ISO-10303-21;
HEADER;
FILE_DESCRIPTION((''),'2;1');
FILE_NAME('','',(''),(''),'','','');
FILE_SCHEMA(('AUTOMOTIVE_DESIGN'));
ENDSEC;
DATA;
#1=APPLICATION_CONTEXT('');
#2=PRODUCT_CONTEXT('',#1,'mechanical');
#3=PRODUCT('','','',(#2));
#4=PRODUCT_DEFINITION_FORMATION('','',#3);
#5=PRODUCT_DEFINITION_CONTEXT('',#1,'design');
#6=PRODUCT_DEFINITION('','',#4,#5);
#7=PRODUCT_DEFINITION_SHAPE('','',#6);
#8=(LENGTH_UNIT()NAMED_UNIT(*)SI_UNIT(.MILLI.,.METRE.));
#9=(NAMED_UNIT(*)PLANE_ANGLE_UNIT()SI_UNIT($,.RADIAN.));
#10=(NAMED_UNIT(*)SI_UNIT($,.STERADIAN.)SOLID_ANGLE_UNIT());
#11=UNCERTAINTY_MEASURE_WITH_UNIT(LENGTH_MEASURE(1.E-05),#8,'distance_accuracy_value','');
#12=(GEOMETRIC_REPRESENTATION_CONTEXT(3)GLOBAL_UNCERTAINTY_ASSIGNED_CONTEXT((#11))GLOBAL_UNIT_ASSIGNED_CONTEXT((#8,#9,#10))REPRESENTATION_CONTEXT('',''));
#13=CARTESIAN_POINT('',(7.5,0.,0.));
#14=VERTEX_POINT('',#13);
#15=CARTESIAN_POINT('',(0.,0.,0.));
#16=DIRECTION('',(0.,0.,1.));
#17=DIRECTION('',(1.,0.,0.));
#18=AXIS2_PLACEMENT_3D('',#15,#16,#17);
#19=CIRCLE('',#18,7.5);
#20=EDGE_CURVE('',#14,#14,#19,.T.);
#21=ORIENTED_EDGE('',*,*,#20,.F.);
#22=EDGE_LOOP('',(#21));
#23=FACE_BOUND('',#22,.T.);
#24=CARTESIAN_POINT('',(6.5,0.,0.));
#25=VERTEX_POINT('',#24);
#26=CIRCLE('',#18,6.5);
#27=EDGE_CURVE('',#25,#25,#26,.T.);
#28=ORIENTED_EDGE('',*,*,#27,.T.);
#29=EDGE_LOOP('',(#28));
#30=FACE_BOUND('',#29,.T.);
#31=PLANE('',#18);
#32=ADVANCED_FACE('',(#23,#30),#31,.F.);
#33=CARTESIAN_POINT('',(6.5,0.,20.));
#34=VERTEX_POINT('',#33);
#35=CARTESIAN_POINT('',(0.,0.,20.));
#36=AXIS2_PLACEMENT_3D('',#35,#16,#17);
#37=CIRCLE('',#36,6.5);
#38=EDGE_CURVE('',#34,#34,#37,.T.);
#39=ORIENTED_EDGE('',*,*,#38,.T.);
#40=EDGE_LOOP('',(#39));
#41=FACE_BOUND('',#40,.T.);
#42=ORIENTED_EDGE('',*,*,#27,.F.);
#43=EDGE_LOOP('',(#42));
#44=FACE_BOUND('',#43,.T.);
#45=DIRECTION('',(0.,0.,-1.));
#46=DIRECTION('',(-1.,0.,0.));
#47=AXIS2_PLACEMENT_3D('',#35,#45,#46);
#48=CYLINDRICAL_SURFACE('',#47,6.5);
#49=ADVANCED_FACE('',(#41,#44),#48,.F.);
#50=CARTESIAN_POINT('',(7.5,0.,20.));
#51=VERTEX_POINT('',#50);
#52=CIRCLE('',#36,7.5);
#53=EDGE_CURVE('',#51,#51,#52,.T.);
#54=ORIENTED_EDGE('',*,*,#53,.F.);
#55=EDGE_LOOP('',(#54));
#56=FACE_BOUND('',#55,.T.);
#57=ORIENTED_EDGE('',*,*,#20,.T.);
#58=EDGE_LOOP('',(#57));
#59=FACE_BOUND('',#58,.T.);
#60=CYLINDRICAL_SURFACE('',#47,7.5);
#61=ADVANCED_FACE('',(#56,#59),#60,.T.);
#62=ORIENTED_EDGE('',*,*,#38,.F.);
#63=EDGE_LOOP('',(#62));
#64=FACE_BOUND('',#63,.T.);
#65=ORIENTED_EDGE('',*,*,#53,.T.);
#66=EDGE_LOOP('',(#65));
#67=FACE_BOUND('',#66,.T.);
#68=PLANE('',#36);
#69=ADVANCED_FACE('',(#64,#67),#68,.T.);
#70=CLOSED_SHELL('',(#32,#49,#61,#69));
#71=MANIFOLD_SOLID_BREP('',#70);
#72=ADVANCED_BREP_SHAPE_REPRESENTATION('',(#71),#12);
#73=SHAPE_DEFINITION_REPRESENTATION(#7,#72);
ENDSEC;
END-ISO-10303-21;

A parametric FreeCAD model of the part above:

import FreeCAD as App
import Part
import Sketcher

doc = App.newDocument("Part")
body = doc.addObject("PartDesign::Body", "Body")

# Sketch on XY plane
sketch1 = body.newObject("Sketcher::SketchObject", "Sketch")
sketch1.AttachmentSupport = (doc.getObject("XY_Plane"), [""])
sketch1.MapMode = "FlatFace"
sketch1.addGeometry(Part.Circle(App.Vector(0, 0, 0), App.Vector(0, 0, 1), 8), False)
sketch1.addGeometry(Part.Circle(App.Vector(0, 0, 0), App.Vector(0, 0, 1), 6), False)
sketch1.addConstraint(Sketcher.Constraint("Coincident", 0, 3, -1, 1))
sketch1.addConstraint(Sketcher.Constraint("Coincident", 1, 3, -1, 1))
sketch1.addConstraint(Sketcher.Constraint("Diameter", 0, 15.0))
sketch1.addConstraint(Sketcher.Constraint("Diameter", 1, 13.0))
pad1 = body.newObject("PartDesign::Pad", "Pad")
pad1.Profile = sketch1
pad1.Length = 20

doc.recompute()
